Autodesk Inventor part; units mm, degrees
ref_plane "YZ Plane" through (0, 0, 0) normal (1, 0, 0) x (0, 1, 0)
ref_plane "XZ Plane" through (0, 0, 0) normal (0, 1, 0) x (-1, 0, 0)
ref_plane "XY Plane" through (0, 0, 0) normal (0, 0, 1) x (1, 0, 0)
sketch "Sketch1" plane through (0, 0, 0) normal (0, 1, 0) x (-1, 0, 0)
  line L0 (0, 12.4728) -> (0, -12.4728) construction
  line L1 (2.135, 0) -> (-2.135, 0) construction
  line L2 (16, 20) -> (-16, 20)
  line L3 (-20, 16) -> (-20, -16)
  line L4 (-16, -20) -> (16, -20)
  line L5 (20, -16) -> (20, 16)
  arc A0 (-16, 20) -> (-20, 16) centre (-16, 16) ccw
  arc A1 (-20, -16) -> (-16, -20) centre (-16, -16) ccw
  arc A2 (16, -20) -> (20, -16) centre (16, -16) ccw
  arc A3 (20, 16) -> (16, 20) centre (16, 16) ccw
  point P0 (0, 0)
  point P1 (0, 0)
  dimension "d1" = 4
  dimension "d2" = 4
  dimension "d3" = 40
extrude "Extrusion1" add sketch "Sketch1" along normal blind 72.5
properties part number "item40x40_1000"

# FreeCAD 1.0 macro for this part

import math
import FreeCAD as App
import Part
import Sketcher

doc = App.newDocument("Part")
body = doc.addObject("PartDesign::Body", "Body")

# Sketch on XZ plane
sketch1 = doc.addObject("Sketcher::SketchObject", "Sketch")
body.addObject(sketch1)
sketch1.AttachmentSupport = (doc.XZ_Plane, [""])
sketch1.MapMode = "FlatFace"
sketch1.addGeometry([
    Part.ArcOfCircle(Part.Circle(App.Vector(-16, 16, 0), App.Vector(0, 0, 1), 4), math.radians(90), math.radians(180)),  # 0
    Part.LineSegment(App.Vector(-16, 20, 0), App.Vector(16, 20, 0)),  # 1
    Part.ArcOfCircle(Part.Circle(App.Vector(16, 16, 0), App.Vector(0, 0, 1), 4), math.radians(0), math.radians(90)),  # 2
    Part.LineSegment(App.Vector(20, 16, 0), App.Vector(20, -16, 0)),  # 3
    Part.ArcOfCircle(Part.Circle(App.Vector(16, -16, 0), App.Vector(0, 0, 1), 4), math.radians(-90), math.radians(0)),  # 4
    Part.LineSegment(App.Vector(16, -20, 0), App.Vector(-16, -20, 0)),  # 5
    Part.ArcOfCircle(Part.Circle(App.Vector(-16, -16, 0), App.Vector(0, 0, 1), 4), math.radians(180), math.radians(270)),  # 6
    Part.LineSegment(App.Vector(-20, -16, 0), App.Vector(-20, 16, 0)),  # 7
], False)
sketch1.addConstraint([
    Sketcher.Constraint("Tangent", 0, 1, 1, 1),
    Sketcher.Constraint("Tangent", 1, 2, 2, 2),
    Sketcher.Constraint("Tangent", 2, 1, 3, 1),
    Sketcher.Constraint("Tangent", 3, 2, 4, 2),
    Sketcher.Constraint("Tangent", 4, 1, 5, 1),
    Sketcher.Constraint("Tangent", 5, 2, 6, 2),
    Sketcher.Constraint("Tangent", 6, 1, 7, 1),
    Sketcher.Constraint("Tangent", 7, 2, 0, 2),
    Sketcher.Constraint("Horizontal", 1),
    Sketcher.Constraint("Vertical", 3),
    Sketcher.Constraint("Horizontal", 5),
    Sketcher.Constraint("Vertical", 7),
    Sketcher.Constraint("Equal", 0, 2),
    Sketcher.Constraint("Equal", 2, 4),
    Sketcher.Constraint("Equal", 4, 6),
    Sketcher.Constraint("Symmetric", 0, 3, 4, 3, -1, 1),
    Sketcher.Constraint("Equal", 5, 3),
    Sketcher.Constraint("Radius", 0, 4.0),
    Sketcher.Constraint("DistanceX", 1, 1, 1, 2, 32.0),
])
pad1 = doc.addObject("PartDesign::Pad", "Pad")
body.addObject(pad1)
pad1.Profile = sketch1
pad1.Length = 72.5
pad1.Reversed = True

doc.recompute()
